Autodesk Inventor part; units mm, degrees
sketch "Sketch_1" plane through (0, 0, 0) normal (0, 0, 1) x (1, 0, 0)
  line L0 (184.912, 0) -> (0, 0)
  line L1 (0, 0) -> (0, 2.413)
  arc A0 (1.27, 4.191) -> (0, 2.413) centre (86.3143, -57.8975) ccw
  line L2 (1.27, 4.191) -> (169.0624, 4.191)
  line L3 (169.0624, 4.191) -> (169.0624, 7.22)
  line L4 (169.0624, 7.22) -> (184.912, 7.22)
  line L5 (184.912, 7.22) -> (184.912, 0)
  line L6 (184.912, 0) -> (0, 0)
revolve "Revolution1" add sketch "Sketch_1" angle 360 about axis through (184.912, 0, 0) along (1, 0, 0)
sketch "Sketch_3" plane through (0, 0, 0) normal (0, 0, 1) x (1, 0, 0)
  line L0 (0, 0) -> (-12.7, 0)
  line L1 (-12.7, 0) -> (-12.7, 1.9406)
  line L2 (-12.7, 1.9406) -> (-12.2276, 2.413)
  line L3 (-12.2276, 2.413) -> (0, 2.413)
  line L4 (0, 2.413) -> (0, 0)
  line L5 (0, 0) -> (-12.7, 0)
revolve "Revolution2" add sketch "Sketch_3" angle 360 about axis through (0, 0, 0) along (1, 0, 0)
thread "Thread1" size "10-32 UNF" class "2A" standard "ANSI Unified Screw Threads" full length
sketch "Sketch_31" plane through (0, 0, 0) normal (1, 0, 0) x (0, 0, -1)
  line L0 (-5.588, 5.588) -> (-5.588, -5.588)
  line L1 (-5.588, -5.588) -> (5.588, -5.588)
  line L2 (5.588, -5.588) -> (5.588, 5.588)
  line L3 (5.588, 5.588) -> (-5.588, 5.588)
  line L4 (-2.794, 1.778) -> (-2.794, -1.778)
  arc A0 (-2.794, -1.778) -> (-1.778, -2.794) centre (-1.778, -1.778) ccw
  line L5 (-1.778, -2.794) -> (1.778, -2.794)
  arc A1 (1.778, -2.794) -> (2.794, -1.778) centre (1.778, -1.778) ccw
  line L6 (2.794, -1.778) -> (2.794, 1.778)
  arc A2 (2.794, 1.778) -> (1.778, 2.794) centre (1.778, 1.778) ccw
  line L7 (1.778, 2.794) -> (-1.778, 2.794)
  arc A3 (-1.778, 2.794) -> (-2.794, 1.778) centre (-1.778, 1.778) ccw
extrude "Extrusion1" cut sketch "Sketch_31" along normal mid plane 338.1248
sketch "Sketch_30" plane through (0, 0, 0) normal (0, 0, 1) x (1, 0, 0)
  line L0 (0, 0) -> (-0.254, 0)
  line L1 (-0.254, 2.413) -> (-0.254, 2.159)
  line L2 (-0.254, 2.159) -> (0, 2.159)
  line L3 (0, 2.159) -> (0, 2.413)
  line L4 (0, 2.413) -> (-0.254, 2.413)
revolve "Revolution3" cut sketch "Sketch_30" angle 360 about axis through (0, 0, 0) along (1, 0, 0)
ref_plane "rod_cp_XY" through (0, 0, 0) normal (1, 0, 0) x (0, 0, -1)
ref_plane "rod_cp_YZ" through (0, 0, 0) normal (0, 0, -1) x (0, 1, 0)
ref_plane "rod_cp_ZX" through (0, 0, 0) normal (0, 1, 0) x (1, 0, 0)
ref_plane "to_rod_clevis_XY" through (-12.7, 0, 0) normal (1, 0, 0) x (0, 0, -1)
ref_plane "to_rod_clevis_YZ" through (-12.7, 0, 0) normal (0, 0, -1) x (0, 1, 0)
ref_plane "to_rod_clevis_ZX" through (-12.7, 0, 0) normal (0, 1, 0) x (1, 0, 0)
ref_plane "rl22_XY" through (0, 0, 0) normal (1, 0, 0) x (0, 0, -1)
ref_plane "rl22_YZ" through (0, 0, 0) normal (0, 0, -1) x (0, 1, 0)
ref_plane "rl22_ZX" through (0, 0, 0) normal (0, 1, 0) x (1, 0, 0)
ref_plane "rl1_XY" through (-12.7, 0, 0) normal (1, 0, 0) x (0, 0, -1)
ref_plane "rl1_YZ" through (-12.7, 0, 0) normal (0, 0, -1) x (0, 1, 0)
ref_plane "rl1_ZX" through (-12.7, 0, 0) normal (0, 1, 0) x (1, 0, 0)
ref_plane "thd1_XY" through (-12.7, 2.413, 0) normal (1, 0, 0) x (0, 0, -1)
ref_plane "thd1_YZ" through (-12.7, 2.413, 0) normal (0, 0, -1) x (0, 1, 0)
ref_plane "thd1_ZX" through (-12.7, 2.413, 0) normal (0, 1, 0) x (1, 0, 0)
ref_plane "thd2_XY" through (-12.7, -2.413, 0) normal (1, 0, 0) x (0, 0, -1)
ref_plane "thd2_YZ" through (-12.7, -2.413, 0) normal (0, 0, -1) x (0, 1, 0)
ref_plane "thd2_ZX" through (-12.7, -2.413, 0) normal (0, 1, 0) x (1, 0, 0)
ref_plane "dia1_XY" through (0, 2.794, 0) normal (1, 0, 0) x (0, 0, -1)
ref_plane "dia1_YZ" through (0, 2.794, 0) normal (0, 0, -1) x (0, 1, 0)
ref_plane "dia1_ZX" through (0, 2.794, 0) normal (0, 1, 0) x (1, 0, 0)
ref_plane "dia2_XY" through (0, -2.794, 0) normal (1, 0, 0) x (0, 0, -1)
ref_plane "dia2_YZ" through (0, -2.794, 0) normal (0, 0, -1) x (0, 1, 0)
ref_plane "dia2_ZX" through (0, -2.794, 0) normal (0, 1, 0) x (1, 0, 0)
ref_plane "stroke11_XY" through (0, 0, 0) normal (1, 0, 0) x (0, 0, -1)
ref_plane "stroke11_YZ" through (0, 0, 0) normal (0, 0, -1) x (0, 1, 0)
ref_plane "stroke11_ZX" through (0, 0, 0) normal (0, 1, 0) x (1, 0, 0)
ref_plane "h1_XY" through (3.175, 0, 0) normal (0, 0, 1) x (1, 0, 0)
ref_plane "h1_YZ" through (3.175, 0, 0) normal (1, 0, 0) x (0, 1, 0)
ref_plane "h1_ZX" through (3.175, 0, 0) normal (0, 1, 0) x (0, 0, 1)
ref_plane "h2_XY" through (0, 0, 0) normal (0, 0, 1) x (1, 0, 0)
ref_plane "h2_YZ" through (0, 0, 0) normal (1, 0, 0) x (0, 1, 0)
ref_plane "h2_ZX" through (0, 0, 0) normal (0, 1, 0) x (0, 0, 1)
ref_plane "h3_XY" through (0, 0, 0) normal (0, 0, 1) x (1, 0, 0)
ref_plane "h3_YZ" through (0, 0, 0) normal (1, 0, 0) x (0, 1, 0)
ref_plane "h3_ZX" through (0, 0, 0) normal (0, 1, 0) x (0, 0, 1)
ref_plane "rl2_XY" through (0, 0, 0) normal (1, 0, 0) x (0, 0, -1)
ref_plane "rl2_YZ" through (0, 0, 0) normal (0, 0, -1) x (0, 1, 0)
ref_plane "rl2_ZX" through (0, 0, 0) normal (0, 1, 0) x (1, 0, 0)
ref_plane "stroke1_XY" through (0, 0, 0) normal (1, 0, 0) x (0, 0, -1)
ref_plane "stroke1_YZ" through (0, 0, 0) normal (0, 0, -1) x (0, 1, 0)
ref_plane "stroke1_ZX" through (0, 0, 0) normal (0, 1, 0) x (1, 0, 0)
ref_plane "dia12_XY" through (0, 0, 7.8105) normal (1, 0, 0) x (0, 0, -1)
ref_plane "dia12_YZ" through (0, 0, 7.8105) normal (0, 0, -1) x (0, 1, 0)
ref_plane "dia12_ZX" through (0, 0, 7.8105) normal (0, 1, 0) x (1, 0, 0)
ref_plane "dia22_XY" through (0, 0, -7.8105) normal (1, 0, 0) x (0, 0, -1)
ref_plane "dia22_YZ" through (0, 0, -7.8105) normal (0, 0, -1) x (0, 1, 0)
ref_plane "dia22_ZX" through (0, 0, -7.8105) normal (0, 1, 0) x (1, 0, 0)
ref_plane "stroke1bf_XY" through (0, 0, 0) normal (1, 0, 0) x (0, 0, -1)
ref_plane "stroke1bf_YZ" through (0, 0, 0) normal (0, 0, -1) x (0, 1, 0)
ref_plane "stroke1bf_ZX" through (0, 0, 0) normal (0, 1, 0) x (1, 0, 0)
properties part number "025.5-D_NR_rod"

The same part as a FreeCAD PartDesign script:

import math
import FreeCAD as App
import Part
import Sketcher
Q = App.Units.Quantity

doc = App.newDocument("Part")
params = doc.addObject("Spreadsheet::Sheet", "Params")
for row, (alias, value) in enumerate([
    ("sketch1_width", "7.28 in"),
    ("sketch1_width2", "0.624 in"),
    ("sketch1_width3", "6.606 in"),
    ("sketch1_height", "0.095 in"),
    ("revolution_angle", "360 deg"),
    ("sketch2_width", "0.5 in"),
    ("sketch2_height", "0.095 in"),
    ("revolution2_angle", "360 deg"),
    ("sketch3_radius", "0.04 in"),
    ("sketch3_width", "0.44 in"),
    ("sketch3_width2", "0.14 in"),
    ("pocket1_length", "13.312 in"),
    ("sketch4_width", "0.01 in"),
    ("groove_angle", "360 deg"),
], start=1):
    params.set(f"A{row}", alias)
    params.set(f"B{row}", "=" + value)
    params.setAlias(f"B{row}", alias)

body = doc.addObject("PartDesign::Body", "Body")

sketch1 = body.newObject("Sketcher::SketchObject", "Sketch")
sketch1.AttachmentSupport = (doc.getObject("XY_Plane"), [""])
sketch1.MapMode = "FlatFace"
sketch1.addGeometry([
    Part.LineSegment(App.Vector(0, 0, 0), App.Vector(184.9, 0, 0)),
    Part.LineSegment(App.Vector(184.9, 0, 0), App.Vector(184.9, 7.2, 0)),
    Part.LineSegment(App.Vector(184.9, 7.2, 0), App.Vector(169.1, 7.2, 0)),
    Part.LineSegment(App.Vector(169.1, 7.2, 0), App.Vector(169.1, 4.2, 0)),
    Part.LineSegment(App.Vector(169.1, 4.2, 0), App.Vector(1.3, 4.2, 0)),
    Part.ArcOfCircle(Part.Circle(App.Vector(86.3, -57.9, 0), App.Vector(0, 0, 1), 105.3), math.radians(143.87), math.radians(145.06)),
    Part.LineSegment(App.Vector(0, 2.4, 0), App.Vector(0, 0, 0)),
], False)
sketch1.addConstraint([
    Sketcher.Constraint("Coincident", 0, 2, 1, 1),
    Sketcher.Constraint("Coincident", 1, 2, 2, 1),
    Sketcher.Constraint("Coincident", 2, 2, 3, 1),
    Sketcher.Constraint("Coincident", 3, 2, 4, 1),
    Sketcher.Constraint("Coincident", 4, 2, 5, 1),
    Sketcher.Constraint("Coincident", 5, 2, 6, 1),
    Sketcher.Constraint("Coincident", 6, 2, 0, 1),
    Sketcher.Constraint("Horizontal", 0),
    Sketcher.Constraint("Vertical", 1),
    Sketcher.Constraint("Horizontal", 2),
    Sketcher.Constraint("Vertical", 3),
    Sketcher.Constraint("Horizontal", 4),
    Sketcher.Constraint("Vertical", 6),
    Sketcher.Constraint("Coincident", 6, 2, -1, 1),
    Sketcher.Constraint("DistanceX", 0, 1, 0, 2, Q("7.28 in")),
    Sketcher.Constraint("DistanceX", 2, 2, 2, 1, Q("0.624 in")),
    Sketcher.Constraint("DistanceX", 4, 2, 4, 1, Q("6.606 in")),
    Sketcher.Constraint("DistanceY", 6, 2, 6, 1, Q("0.095 in")),
    Sketcher.Constraint("Radius", 5, Q("105.2973 mm")),
    Sketcher.Constraint("DistanceY", -1, 1, 3, 2, Q("0.165 in")),
    Sketcher.Constraint("DistanceY", 1, 1, 1, 2, Q("7.22 mm")),
])
sketch1.setExpression("Constraints[14]", "Params.sketch1_width")
sketch1.setExpression("Constraints[15]", "Params.sketch1_width2")
sketch1.setExpression("Constraints[16]", "Params.sketch1_width3")
sketch1.setExpression("Constraints[17]", "Params.sketch1_height")
revolution = body.newObject("PartDesign::Revolution", "Revolution")
revolution.Profile = sketch1
revolution.ReferenceAxis = (sketch1, ["H_Axis"])
revolution.setExpression("Angle", "Params.revolution_angle")

sketch2 = body.newObject("Sketcher::SketchObject", "Sketch001")
sketch2.AttachmentSupport = (doc.getObject("XY_Plane"), [""])
sketch2.MapMode = "FlatFace"
sketch2.addGeometry([
    Part.LineSegment(App.Vector(-12.7, 0, 0), App.Vector(0, 0, 0)),
    Part.LineSegment(App.Vector(0, 0, 0), App.Vector(0, 2.4, 0)),
    Part.LineSegment(App.Vector(0, 2.4, 0), App.Vector(-12.2, 2.4, 0)),
    Part.LineSegment(App.Vector(-12.2, 2.4, 0), App.Vector(-12.7, 1.9, 0)),
    Part.LineSegment(App.Vector(-12.7, 1.9, 0), App.Vector(-12.7, 0, 0)),
], False)
sketch2.addConstraint([
    Sketcher.Constraint("Coincident", 0, 2, 1, 1),
    Sketcher.Constraint("Coincident", 1, 2, 2, 1),
    Sketcher.Constraint("Coincident", 2, 2, 3, 1),
    Sketcher.Constraint("Coincident", 3, 2, 4, 1),
    Sketcher.Constraint("Coincident", 4, 2, 0, 1),
    Sketcher.Constraint("Horizontal", 0),
    Sketcher.Constraint("Vertical", 1),
    Sketcher.Constraint("Horizontal", 2),
    Sketcher.Constraint("Vertical", 4),
    Sketcher.Constraint("Coincident", 0, 2, -1, 1),
    Sketcher.Constraint("DistanceX", 0, 1, 0, 2, Q("0.5 in")),
    Sketcher.Constraint("Angle", 3, Q("-135 deg")),
    Sketcher.Constraint("DistanceY", 1, 1, 1, 2, Q("0.095 in")),
    Sketcher.Constraint("DistanceX", 2, 2, 2, 1, Q("0.4814 in")),
])
sketch2.setExpression("Constraints[10]", "Params.sketch2_width")
sketch2.setExpression("Constraints[12]", "Params.sketch2_height")
revolution2 = body.newObject("PartDesign::Revolution", "Revolution001")
revolution2.Profile = sketch2
revolution2.ReferenceAxis = (sketch2, ["H_Axis"])
revolution2.setExpression("Angle", "Params.revolution2_angle")

sketch3 = body.newObject("Sketcher::SketchObject", "Sketch002")
sketch3.AttachmentSupport = (doc.getObject("YZ_Plane"), [""])
sketch3.MapMode = "FlatFace"
sketch3.addGeometry([
    Part.LineSegment(App.Vector(5.6, -5.6, 0), App.Vector(5.6, 5.6, 0)),
    Part.LineSegment(App.Vector(5.6, 5.6, 0), App.Vector(-5.6, 5.6, 0)),
    Part.LineSegment(App.Vector(-5.6, 5.6, 0), App.Vector(-5.6, -5.6, 0)),
    Part.LineSegment(App.Vector(-5.6, -5.6, 0), App.Vector(5.6, -5.6, 0)),
    Part.LineSegment(App.Vector(-1.8, 2.8, 0), App.Vector(1.8, 2.8, 0)),
    Part.ArcOfCircle(Part.Circle(App.Vector(1.8, 1.8, 0), App.Vector(0, 0, 1), 1), math.radians(0), math.radians(90)),
    Part.LineSegment(App.Vector(2.8, 1.8, 0), App.Vector(2.8, -1.8, 0)),
    Part.ArcOfCircle(Part.Circle(App.Vector(1.8, -1.8, 0), App.Vector(0, 0, 1), 1), math.radians(-90), math.radians(0)),
    Part.LineSegment(App.Vector(1.8, -2.8, 0), App.Vector(-1.8, -2.8, 0)),
    Part.ArcOfCircle(Part.Circle(App.Vector(-1.8, -1.8, 0), App.Vector(0, 0, 1), 1), math.radians(180), math.radians(270)),
    Part.LineSegment(App.Vector(-2.8, -1.8, 0), App.Vector(-2.8, 1.8, 0)),
    Part.ArcOfCircle(Part.Circle(App.Vector(-1.8, 1.8, 0), App.Vector(0, 0, 1), 1), math.radians(90), math.radians(180)),
], False)
sketch3.addConstraint([
    Sketcher.Constraint("Coincident", 0, 2, 1, 1),
    Sketcher.Constraint("Coincident", 1, 2, 2, 1),
    Sketcher.Constraint("Coincident", 2, 2, 3, 1),
    Sketcher.Constraint("Coincident", 3, 2, 0, 1),
    Sketcher.Constraint("Tangent", 4, 2, 5, 2),
    Sketcher.Constraint("Tangent", 5, 1, 6, 1),
    Sketcher.Constraint("Tangent", 6, 2, 7, 2),
    Sketcher.Constraint("Tangent", 7, 1, 8, 1),
    Sketcher.Constraint("Tangent", 8, 2, 9, 2),
    Sketcher.Constraint("Tangent", 9, 1, 10, 1),
    Sketcher.Constraint("Tangent", 10, 2, 11, 2),
    Sketcher.Constraint("Tangent", 11, 1, 4, 1),
    Sketcher.Constraint("Vertical", 0),
    Sketcher.Constraint("Horizontal", 1),
    Sketcher.Constraint("Vertical", 2),
    Sketcher.Constraint("Horizontal", 3),
    Sketcher.Constraint("Horizontal", 4),
    Sketcher.Constraint("Vertical", 6),
    Sketcher.Constraint("Horizontal", 8),
    Sketcher.Constraint("Vertical", 10),
    Sketcher.Constraint("Equal", 5, 7),
    Sketcher.Constraint("Equal", 7, 9),
    Sketcher.Constraint("Equal", 9, 11),
    Sketcher.Constraint("Symmetric", 5, 3, 9, 3, -1, 1),
    Sketcher.Constraint("Symmetric", 0, 2, 2, 2, -1, 1),
    Sketcher.Constraint("Equal", 3, 0),
    Sketcher.Constraint("Equal", 8, 6),
    Sketcher.Constraint("Radius", 5, Q("0.04 in")),
    Sketcher.Constraint("DistanceX", 1, 2, 1, 1, Q("0.44 in")),
    Sketcher.Constraint("DistanceX", 4, 1, 4, 2, Q("0.14 in")),
])
sketch3.setExpression("Constraints[27]", "Params.sketch3_radius")
sketch3.setExpression("Constraints[28]", "Params.sketch3_width")
sketch3.setExpression("Constraints[29]", "Params.sketch3_width2")
pocket1 = body.newObject("PartDesign::Pocket", "Pocket")
pocket1.Profile = sketch3
pocket1.setExpression("Length", "Params.pocket1_length")
pocket1.Midplane = True

sketch4 = body.newObject("Sketcher::SketchObject", "Sketch003")
sketch4.AttachmentSupport = (doc.getObject("XY_Plane"), [""])
sketch4.MapMode = "FlatFace"
sketch4.addGeometry([
    Part.LineSegment(App.Vector(0, 2.41, 0), App.Vector(-0.25, 2.41, 0)),
    Part.LineSegment(App.Vector(-0.25, 2.41, 0), App.Vector(-0.25, 2.16, 0)),
    Part.LineSegment(App.Vector(-0.25, 2.16, 0), App.Vector(0, 2.16, 0)),
    Part.LineSegment(App.Vector(0, 2.16, 0), App.Vector(0, 2.41, 0)),
], False)
sketch4.addConstraint([
    Sketcher.Constraint("Coincident", 0, 2, 1, 1),
    Sketcher.Constraint("Coincident", 1, 2, 2, 1),
    Sketcher.Constraint("Coincident", 2, 2, 3, 1),
    Sketcher.Constraint("Coincident", 3, 2, 0, 1),
    Sketcher.Constraint("Horizontal", 0),
    Sketcher.Constraint("Vertical", 1),
    Sketcher.Constraint("Horizontal", 2),
    Sketcher.Constraint("Vertical", 3),
    Sketcher.Constraint("PointOnObject", 2, 2, -2),
    Sketcher.Constraint("Equal", 2, 1),
    Sketcher.Constraint("DistanceX", 0, 2, 0, 1, Q("0.01 in")),
    Sketcher.Constraint("DistanceY", -1, 1, 0, 2, Q("0.095 in")),
])
sketch4.setExpression("Constraints[10]", "Params.sketch4_width")
groove = body.newObject("PartDesign::Groove", "Groove")
groove.Profile = sketch4
groove.ReferenceAxis = (sketch4, ["H_Axis"])
groove.setExpression("Angle", "Params.groove_angle")

doc.recompute()
